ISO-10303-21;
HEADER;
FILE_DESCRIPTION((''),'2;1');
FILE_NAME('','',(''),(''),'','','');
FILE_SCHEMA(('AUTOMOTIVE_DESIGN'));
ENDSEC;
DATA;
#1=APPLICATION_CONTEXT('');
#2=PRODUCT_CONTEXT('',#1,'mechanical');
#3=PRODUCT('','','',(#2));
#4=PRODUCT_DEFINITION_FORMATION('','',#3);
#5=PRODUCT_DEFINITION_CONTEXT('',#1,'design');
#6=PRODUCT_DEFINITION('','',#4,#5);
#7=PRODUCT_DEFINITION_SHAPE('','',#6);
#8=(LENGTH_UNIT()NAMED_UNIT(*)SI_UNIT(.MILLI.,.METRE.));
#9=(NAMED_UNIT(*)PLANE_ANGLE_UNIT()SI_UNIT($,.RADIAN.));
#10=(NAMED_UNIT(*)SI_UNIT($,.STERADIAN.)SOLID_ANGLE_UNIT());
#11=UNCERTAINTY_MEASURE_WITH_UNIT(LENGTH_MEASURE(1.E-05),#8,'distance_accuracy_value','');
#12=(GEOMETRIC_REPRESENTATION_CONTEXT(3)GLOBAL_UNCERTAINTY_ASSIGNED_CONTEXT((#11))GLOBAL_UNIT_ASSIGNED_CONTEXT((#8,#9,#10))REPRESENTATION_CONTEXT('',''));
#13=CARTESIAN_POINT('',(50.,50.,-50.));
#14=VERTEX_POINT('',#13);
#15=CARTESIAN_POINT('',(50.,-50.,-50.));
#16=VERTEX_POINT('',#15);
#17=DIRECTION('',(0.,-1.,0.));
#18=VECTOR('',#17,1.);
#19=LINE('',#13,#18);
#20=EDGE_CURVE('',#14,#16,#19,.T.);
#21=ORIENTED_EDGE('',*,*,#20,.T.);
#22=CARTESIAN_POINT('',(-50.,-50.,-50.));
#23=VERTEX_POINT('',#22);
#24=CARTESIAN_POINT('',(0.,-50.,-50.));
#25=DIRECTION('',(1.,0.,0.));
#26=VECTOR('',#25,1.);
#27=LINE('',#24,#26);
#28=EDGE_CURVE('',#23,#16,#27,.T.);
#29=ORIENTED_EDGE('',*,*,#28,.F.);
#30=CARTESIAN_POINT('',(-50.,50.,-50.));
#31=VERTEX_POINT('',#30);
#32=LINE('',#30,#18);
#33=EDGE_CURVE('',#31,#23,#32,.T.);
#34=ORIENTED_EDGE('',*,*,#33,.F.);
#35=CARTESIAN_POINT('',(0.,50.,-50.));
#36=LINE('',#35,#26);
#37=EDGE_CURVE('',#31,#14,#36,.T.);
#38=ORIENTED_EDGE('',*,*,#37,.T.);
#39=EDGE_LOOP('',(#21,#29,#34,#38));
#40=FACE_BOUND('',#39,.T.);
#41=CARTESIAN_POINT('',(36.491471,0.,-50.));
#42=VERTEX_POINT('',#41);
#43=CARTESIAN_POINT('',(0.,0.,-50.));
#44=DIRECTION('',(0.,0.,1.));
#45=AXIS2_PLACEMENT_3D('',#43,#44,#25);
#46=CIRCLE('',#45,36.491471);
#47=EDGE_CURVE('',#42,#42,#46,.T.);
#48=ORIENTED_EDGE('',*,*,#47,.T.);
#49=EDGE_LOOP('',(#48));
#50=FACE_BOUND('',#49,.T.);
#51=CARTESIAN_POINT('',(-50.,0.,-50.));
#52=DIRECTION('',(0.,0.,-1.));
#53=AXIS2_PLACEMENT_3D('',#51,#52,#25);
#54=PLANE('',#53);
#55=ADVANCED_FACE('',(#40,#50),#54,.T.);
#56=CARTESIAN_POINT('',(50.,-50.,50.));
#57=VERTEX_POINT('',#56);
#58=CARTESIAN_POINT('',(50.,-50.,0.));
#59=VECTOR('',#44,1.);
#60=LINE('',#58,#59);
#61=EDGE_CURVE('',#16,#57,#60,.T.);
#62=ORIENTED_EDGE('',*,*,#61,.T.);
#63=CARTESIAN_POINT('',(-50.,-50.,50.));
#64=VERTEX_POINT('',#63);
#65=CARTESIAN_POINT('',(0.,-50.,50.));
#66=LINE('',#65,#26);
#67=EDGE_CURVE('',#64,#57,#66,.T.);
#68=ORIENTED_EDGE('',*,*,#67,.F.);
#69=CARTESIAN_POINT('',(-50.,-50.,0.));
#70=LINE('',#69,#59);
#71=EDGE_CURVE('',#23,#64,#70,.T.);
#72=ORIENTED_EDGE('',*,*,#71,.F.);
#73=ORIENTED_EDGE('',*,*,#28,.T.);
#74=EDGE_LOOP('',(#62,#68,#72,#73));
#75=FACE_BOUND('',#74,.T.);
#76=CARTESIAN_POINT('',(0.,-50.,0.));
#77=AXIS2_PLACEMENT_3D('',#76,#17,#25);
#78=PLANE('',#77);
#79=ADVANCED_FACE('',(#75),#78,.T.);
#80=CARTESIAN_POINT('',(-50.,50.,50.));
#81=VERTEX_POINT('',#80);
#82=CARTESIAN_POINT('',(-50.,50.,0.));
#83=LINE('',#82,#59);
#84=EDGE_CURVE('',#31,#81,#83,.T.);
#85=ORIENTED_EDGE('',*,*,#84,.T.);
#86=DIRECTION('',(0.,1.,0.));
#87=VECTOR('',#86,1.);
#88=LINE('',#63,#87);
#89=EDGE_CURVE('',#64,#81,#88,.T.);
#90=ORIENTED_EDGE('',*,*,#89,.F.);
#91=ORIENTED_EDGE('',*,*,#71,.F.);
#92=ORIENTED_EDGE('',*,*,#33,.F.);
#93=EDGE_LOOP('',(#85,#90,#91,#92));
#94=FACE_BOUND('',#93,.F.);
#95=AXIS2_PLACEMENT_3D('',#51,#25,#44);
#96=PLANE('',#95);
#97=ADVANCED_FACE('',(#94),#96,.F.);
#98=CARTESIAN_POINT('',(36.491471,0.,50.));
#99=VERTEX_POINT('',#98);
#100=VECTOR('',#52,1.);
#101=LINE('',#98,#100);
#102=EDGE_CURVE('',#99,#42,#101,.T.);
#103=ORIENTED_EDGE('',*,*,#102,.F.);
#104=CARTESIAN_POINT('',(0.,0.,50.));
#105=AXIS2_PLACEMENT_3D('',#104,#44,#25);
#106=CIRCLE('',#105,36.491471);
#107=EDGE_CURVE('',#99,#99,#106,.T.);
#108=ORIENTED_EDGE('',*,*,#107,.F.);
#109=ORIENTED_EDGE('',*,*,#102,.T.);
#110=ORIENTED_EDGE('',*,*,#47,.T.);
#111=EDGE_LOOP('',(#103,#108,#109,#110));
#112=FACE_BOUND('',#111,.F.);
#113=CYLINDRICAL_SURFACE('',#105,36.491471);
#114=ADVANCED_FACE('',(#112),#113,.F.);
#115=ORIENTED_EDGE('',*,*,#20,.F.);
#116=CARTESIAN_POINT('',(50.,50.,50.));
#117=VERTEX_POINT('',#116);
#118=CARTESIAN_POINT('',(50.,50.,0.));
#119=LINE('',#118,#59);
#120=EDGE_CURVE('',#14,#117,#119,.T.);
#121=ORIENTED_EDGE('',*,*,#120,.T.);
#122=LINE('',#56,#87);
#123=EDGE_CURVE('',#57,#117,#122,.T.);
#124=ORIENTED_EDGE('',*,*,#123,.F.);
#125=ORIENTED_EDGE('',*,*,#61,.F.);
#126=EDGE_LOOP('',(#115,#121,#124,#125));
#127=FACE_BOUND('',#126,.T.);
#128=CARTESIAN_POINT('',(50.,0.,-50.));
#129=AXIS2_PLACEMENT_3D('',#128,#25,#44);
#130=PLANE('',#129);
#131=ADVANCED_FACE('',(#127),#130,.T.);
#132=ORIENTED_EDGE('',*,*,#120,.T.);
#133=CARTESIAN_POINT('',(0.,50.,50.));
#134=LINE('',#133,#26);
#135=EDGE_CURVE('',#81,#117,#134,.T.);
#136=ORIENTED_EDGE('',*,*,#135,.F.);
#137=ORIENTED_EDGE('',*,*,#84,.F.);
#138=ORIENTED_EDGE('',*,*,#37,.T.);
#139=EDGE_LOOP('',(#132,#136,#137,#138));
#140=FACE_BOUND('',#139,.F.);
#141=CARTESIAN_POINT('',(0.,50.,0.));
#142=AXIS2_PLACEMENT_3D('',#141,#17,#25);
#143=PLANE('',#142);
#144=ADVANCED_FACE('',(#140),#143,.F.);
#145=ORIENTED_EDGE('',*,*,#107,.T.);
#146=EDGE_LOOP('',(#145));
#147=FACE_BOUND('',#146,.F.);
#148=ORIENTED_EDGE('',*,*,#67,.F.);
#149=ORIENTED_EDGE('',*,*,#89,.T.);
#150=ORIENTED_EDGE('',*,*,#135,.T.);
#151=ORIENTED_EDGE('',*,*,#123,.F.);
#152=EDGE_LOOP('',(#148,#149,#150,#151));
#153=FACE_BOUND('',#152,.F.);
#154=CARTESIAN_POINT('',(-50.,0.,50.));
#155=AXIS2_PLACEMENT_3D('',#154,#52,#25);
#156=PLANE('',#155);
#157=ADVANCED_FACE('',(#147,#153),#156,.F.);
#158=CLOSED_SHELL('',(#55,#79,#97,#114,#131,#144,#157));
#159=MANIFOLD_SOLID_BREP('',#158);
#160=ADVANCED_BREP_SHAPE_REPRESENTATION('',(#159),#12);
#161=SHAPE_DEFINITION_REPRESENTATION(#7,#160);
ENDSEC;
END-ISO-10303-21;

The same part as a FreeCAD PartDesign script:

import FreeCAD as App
import Part
import Sketcher

V = App.Vector
Q = App.Units.Quantity


def add_polygon(sketch, points):
    """Adds a closed chain of lines whose ends are joined by coincident constraints."""
    first, n = sketch.GeometryCount, len(points)
    for a, b in zip(points, points[1:] + points[:1]):
        sketch.addGeometry(Part.LineSegment(App.Vector(*a, 0), App.Vector(*b, 0)), False)
    for i in range(n):
        sketch.addConstraint(Sketcher.Constraint("Coincident", first + i, 2, first + (i + 1) % n, 1))

doc = App.newDocument("Part")
body = doc.addObject("PartDesign::Body", "Body")

# Sketch on XZ plane
sketch1 = body.newObject("Sketcher::SketchObject", "Sketch")
sketch1.AttachmentSupport = (doc.getObject("XZ_Plane"), [""])
sketch1.MapMode = "FlatFace"
add_polygon(sketch1, [(-50, 50), (-50, -50), (50, -50), (50, 50)])  # lines 0-3
sketch1.addConstraint(Sketcher.Constraint("Vertical", 0))
sketch1.addConstraint(Sketcher.Constraint("Horizontal", 1))
sketch1.addConstraint(Sketcher.Constraint("Vertical", 2))
sketch1.addConstraint(Sketcher.Constraint("Horizontal", 3))
sketch1.addConstraint(Sketcher.Constraint("Symmetric", 0, 2, 2, 2, -1, 1))
sketch1.addConstraint(Sketcher.Constraint("Equal", 3, 0))
sketch1.addConstraint(Sketcher.Constraint("DistanceX", 1, 1, 1, 2, Q("100 mm")))
pad1 = body.newObject("PartDesign::Pad", "Pad")
pad1.Profile = sketch1
pad1.Length = 100
pad1.Midplane = True

# Sketch on XY plane
sketch2 = body.newObject("Sketcher::SketchObject", "Sketch001")
sketch2.AttachmentSupport = (doc.getObject("XY_Plane"), [""])
sketch2.MapMode = "FlatFace"
sketch2.AttachmentOffset = App.Placement(V(0, 0, 50), App.Rotation())
sketch2.addGeometry(Part.Circle(V(0, 0, 0), V(0, 0, 1), 36), False)
sketch2.addConstraint(Sketcher.Constraint("Coincident", 0, 3, -1, 1))
sketch2.addConstraint(Sketcher.Constraint("Diameter", 0, Q("72.982942 mm")))
pocket1 = body.newObject("PartDesign::Pocket", "Pocket")
pocket1.Profile = sketch2
pocket1.Type = "ThroughAll"

doc.recompute()
